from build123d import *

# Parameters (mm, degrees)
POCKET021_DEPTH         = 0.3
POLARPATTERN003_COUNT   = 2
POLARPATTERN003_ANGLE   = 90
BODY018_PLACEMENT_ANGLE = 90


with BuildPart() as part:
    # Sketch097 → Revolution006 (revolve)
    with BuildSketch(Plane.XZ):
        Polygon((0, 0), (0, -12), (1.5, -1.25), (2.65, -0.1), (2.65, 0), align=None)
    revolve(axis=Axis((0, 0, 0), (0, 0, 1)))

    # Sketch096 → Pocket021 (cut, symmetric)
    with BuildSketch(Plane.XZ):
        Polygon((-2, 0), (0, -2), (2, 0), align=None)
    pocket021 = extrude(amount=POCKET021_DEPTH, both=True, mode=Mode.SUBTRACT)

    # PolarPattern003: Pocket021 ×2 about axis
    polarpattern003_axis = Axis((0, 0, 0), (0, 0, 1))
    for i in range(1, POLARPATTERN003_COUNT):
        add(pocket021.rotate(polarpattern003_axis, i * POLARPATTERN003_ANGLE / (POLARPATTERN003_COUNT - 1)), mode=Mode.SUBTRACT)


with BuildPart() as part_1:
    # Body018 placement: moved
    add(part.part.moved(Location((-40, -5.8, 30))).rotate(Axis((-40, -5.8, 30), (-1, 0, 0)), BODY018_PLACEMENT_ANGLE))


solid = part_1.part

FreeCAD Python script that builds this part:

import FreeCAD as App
import Part
import Sketcher
from FreeCAD import Vector
Q = App.Units.Quantity


def add_polygon(sketch, points):
    """Adds a closed chain of lines whose ends are joined by coincident constraints."""
    first, n = sketch.GeometryCount, len(points)
    for a, b in zip(points, points[1:] + points[:1]):
        sketch.addGeometry(Part.LineSegment(App.Vector(*a, 0), App.Vector(*b, 0)), False)
    for i in range(n):
        sketch.addConstraint(Sketcher.Constraint("Coincident", first + i, 2, first + (i + 1) % n, 1))

doc = App.newDocument("Part")
body = doc.addObject("PartDesign::Body", "Body")

sketch1 = doc.addObject("Sketcher::SketchObject", "Sketch")
body.addObject(sketch1)
sketch1.AttachmentSupport = (doc.XZ_Plane, [""])
sketch1.MapMode = "FlatFace"
add_polygon(sketch1, [(0, 0), (0, -12), (1.5, -1.25), (2.65, -0.1), (2.65, 0)])
sketch1.addConstraint([
    Sketcher.Constraint("Vertical", 0),
    Sketcher.Constraint("Vertical", 3),
    Sketcher.Constraint("Horizontal", 4),
    Sketcher.Constraint("Coincident", 4, 2, -1, 1),
    Sketcher.Constraint("DistanceY", 0, 2, 0, 1, Q("12 mm")),
    Sketcher.Constraint("Angle", 2, Q("45 deg")),
    Sketcher.Constraint("DistanceY", 3, 1, 3, 2, Q("0.1 mm")),
    Sketcher.Constraint("DistanceX", 4, 2, 4, 1, Q("2.65 mm")),
    Sketcher.Constraint("DistanceX", -1, 1, 1, 2, Q("1.5 mm")),
])
revolution = doc.addObject("PartDesign::Revolution", "Revolution")
body.addObject(revolution)
revolution.Profile = sketch1
revolution.ReferenceAxis = (sketch1, ["V_Axis"])
revolution.Angle = 360

sketch2 = doc.addObject("Sketcher::SketchObject", "Sketch001")
body.addObject(sketch2)
sketch2.AttachmentSupport = (doc.XZ_Plane, [""])
sketch2.MapMode = "FlatFace"
add_polygon(sketch2, [(-2, 0), (0, -2), (2, 0)])
sketch2.addConstraint([
    Sketcher.Constraint("Horizontal", 2),
    Sketcher.Constraint("Symmetric", 1, 2, 2, 2, -1, 1),
    Sketcher.Constraint("PointOnObject", 0, 2, -2),
    Sketcher.Constraint("Perpendicular", 0, 1),
    Sketcher.Constraint("DistanceX", 2, 2, 2, 1, Q("4 mm")),
])
pocket1 = doc.addObject("PartDesign::Pocket", "Pocket")
body.addObject(pocket1)
pocket1.Profile = sketch2
pocket1.Length = 0.6
pocket1.Midplane = True
doc.recompute()

polarpattern = doc.addObject("PartDesign::PolarPattern", "PolarPattern")
body.addObject(polarpattern)
polarpattern.Originals = [pocket1]
polarpattern.Axis = (doc.Z_Axis, [""])
polarpattern.Angle = 90
polarpattern.Occurrences = 2
body.Tip = polarpattern
body2 = doc.addObject("PartDesign::Body", "Body001")
doc.recompute()

body.Placement = App.Placement(Vector(-40, -5.8, 30), App.Rotation(Vector(-1, 0, 0), 90))
boolean = doc.addObject("PartDesign::Boolean", "Boolean")
body2.addObject(boolean)
boolean.Type = "Fuse"
boolean.addObjects([body])

doc.recompute()
